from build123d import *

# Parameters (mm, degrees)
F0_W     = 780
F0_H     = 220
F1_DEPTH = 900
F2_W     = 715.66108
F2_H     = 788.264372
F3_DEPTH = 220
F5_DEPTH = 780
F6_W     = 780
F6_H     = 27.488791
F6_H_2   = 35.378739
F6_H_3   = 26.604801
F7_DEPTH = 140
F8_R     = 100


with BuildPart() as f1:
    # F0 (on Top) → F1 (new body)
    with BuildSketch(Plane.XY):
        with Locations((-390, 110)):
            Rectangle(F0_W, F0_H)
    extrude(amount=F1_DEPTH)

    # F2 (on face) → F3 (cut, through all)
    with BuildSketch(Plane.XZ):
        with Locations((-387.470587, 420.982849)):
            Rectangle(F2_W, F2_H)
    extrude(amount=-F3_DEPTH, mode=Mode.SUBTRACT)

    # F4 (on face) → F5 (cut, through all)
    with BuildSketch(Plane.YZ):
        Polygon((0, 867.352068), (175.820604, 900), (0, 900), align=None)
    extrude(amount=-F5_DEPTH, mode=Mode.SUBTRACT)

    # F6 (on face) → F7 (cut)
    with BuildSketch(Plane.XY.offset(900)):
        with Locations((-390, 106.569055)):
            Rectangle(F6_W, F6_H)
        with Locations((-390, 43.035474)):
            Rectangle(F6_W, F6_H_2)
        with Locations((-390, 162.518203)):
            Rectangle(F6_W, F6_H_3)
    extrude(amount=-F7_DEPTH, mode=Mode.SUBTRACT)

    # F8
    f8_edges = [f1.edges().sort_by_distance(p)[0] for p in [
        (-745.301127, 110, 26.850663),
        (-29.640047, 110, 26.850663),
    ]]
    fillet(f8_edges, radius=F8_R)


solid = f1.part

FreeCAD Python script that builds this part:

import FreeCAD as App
import Part
import Sketcher

V = App.Vector


def edges_at(feature, points):
    """Names of the edges that pass closest to the given points."""
    edges = feature.Shape.Edges
    near = lambda p: min(range(len(edges)), key=lambda i: edges[i].distToShape(Part.Vertex(*p))[0])
    return sorted({f"Edge{near(p) + 1}" for p in points})


def add_polygon(sketch, points):
    """Adds a closed chain of lines whose ends are joined by coincident constraints."""
    first, n = sketch.GeometryCount, len(points)
    for a, b in zip(points, points[1:] + points[:1]):
        sketch.addGeometry(Part.LineSegment(App.Vector(*a, 0), App.Vector(*b, 0)), False)
    for i in range(n):
        sketch.addConstraint(Sketcher.Constraint("Coincident", first + i, 2, first + (i + 1) % n, 1))

doc = App.newDocument("Part")
body = doc.addObject("PartDesign::Body", "Body")

# Sketch on XY plane
sketch1 = body.newObject("Sketcher::SketchObject", "Sketch")
sketch1.AttachmentSupport = (doc.getObject("XY_Plane"), [""])
sketch1.MapMode = "FlatFace"
add_polygon(sketch1, [(-780, 220), (-780, 0), (0, 0), (0, 220)])  # lines 0-3
sketch1.addConstraint([
    Sketcher.Constraint("Vertical", 0),
    Sketcher.Constraint("Horizontal", 1),
    Sketcher.Constraint("Vertical", 2),
    Sketcher.Constraint("Horizontal", 3),
    Sketcher.Constraint("Coincident", 1, 2, -1, 1),
    Sketcher.Constraint("DistanceX", 1, 1, 1, 2, 780.0),
    Sketcher.Constraint("DistanceY", 0, 2, 0, 1, 220.0),
])
pad1 = body.newObject("PartDesign::Pad", "Pad")
pad1.Profile = sketch1
pad1.Length = 900

# Sketch on XZ plane
sketch2 = body.newObject("Sketcher::SketchObject", "Sketch001")
sketch2.AttachmentSupport = (doc.getObject("XZ_Plane"), [""])
sketch2.MapMode = "FlatFace"
add_polygon(sketch2, [(-745, 815), (-745, 27), (-30, 27), (-30, 815)])  # lines 0-3
sketch2.addConstraint([
    Sketcher.Constraint("Vertical", 0),
    Sketcher.Constraint("Horizontal", 1),
    Sketcher.Constraint("Vertical", 2),
    Sketcher.Constraint("Horizontal", 3),
    Sketcher.Constraint("DistanceX", 1, 1, 1, 2, 715.66108),
    Sketcher.Constraint("DistanceY", 0, 2, 0, 1, 788.264372),
    Sketcher.Constraint("DistanceX", 0, 2, -1, 1, 745.301127),
    Sketcher.Constraint("DistanceY", -1, 1, 0, 2, 26.850663),
])
pocket1 = body.newObject("PartDesign::Pocket", "Pocket")
pocket1.Profile = sketch2
pocket1.Type = "ThroughAll"

# Sketch on YZ plane
sketch3 = body.newObject("Sketcher::SketchObject", "Sketch002")
sketch3.AttachmentSupport = (doc.getObject("YZ_Plane"), [""])
sketch3.MapMode = "FlatFace"
add_polygon(sketch3, [(0, 867), (176, 900), (0, 900)])  # lines 0-2
sketch3.addConstraint([
    Sketcher.Constraint("Horizontal", 1),
    Sketcher.Constraint("Vertical", 2),
    Sketcher.Constraint("PointOnObject", 1, 2, -2),
    Sketcher.Constraint("DistanceY", -1, 1, 0, 2, 900.0),
    Sketcher.Constraint("DistanceY", 2, 2, 2, 1, 32.647932),
    Sketcher.Constraint("DistanceX", 1, 2, 1, 1, 175.820604),
])
pocket2 = body.newObject("PartDesign::Pocket", "Pocket001")
pocket2.Profile = sketch3
pocket2.Type = "ThroughAll"

# Sketch on XY plane
sketch4 = body.newObject("Sketcher::SketchObject", "Sketch003")
sketch4.AttachmentSupport = (doc.getObject("XY_Plane"), [""])
sketch4.MapMode = "FlatFace"
sketch4.AttachmentOffset = App.Placement(V(0, 0, 900), App.Rotation())
add_polygon(sketch4, [(-780, 120), (-780, 93), (0, 93), (0, 120)])  # lines 0-3
add_polygon(sketch4, [(-780, 61), (-780, 25), (0, 25), (0, 61)])  # lines 4-7
add_polygon(sketch4, [(-780, 176), (-780, 149), (0, 149), (0, 176)])  # lines 8-11
sketch4.addConstraint([
    Sketcher.Constraint("Vertical", 0),
    Sketcher.Constraint("Horizontal", 1),
    Sketcher.Constraint("Vertical", 2),
    Sketcher.Constraint("Horizontal", 3),
    Sketcher.Constraint("Vertical", 4),
    Sketcher.Constraint("Horizontal", 5),
    Sketcher.Constraint("Vertical", 6),
    Sketcher.Constraint("Horizontal", 7),
    Sketcher.Constraint("Vertical", 8),
    Sketcher.Constraint("Horizontal", 9),
    Sketcher.Constraint("Vertical", 10),
    Sketcher.Constraint("Horizontal", 11),
    Sketcher.Constraint("PointOnObject", 1, 2, -2),
    Sketcher.Constraint("PointOnObject", 5, 2, -2),
    Sketcher.Constraint("PointOnObject", 9, 2, -2),
    Sketcher.Constraint("Vertical", 3, 2, 4, 2),
    Sketcher.Constraint("Vertical", 7, 2, 8, 2),
    Sketcher.Constraint("DistanceX", 1, 1, 1, 2, 780.0),
    Sketcher.Constraint("DistanceY", 8, 2, 8, 1, 26.604801),
    Sketcher.Constraint("DistanceY", 0, 2, 0, 1, 27.488791),
    Sketcher.Constraint("DistanceY", 4, 2, 4, 1, 35.378739),
    Sketcher.Constraint("DistanceY", 4, 2, 8, 2, 123.869698),
    Sketcher.Constraint("DistanceY", -1, 1, 0, 2, 92.824659),
    Sketcher.Constraint("DistanceY", 3, 2, 8, 2, 28.902352),
])
pocket3 = body.newObject("PartDesign::Pocket", "Pocket002")
pocket3.Profile = sketch4
pocket3.Length = 140
doc.recompute()

fillet = body.newObject("PartDesign::Fillet", "Fillet")
fillet.Base = (pocket3, edges_at(pocket3, [(-745.301, 110, 26.851), (-29.64, 110, 26.851)]))
fillet.Radius = 100

doc.recompute()
